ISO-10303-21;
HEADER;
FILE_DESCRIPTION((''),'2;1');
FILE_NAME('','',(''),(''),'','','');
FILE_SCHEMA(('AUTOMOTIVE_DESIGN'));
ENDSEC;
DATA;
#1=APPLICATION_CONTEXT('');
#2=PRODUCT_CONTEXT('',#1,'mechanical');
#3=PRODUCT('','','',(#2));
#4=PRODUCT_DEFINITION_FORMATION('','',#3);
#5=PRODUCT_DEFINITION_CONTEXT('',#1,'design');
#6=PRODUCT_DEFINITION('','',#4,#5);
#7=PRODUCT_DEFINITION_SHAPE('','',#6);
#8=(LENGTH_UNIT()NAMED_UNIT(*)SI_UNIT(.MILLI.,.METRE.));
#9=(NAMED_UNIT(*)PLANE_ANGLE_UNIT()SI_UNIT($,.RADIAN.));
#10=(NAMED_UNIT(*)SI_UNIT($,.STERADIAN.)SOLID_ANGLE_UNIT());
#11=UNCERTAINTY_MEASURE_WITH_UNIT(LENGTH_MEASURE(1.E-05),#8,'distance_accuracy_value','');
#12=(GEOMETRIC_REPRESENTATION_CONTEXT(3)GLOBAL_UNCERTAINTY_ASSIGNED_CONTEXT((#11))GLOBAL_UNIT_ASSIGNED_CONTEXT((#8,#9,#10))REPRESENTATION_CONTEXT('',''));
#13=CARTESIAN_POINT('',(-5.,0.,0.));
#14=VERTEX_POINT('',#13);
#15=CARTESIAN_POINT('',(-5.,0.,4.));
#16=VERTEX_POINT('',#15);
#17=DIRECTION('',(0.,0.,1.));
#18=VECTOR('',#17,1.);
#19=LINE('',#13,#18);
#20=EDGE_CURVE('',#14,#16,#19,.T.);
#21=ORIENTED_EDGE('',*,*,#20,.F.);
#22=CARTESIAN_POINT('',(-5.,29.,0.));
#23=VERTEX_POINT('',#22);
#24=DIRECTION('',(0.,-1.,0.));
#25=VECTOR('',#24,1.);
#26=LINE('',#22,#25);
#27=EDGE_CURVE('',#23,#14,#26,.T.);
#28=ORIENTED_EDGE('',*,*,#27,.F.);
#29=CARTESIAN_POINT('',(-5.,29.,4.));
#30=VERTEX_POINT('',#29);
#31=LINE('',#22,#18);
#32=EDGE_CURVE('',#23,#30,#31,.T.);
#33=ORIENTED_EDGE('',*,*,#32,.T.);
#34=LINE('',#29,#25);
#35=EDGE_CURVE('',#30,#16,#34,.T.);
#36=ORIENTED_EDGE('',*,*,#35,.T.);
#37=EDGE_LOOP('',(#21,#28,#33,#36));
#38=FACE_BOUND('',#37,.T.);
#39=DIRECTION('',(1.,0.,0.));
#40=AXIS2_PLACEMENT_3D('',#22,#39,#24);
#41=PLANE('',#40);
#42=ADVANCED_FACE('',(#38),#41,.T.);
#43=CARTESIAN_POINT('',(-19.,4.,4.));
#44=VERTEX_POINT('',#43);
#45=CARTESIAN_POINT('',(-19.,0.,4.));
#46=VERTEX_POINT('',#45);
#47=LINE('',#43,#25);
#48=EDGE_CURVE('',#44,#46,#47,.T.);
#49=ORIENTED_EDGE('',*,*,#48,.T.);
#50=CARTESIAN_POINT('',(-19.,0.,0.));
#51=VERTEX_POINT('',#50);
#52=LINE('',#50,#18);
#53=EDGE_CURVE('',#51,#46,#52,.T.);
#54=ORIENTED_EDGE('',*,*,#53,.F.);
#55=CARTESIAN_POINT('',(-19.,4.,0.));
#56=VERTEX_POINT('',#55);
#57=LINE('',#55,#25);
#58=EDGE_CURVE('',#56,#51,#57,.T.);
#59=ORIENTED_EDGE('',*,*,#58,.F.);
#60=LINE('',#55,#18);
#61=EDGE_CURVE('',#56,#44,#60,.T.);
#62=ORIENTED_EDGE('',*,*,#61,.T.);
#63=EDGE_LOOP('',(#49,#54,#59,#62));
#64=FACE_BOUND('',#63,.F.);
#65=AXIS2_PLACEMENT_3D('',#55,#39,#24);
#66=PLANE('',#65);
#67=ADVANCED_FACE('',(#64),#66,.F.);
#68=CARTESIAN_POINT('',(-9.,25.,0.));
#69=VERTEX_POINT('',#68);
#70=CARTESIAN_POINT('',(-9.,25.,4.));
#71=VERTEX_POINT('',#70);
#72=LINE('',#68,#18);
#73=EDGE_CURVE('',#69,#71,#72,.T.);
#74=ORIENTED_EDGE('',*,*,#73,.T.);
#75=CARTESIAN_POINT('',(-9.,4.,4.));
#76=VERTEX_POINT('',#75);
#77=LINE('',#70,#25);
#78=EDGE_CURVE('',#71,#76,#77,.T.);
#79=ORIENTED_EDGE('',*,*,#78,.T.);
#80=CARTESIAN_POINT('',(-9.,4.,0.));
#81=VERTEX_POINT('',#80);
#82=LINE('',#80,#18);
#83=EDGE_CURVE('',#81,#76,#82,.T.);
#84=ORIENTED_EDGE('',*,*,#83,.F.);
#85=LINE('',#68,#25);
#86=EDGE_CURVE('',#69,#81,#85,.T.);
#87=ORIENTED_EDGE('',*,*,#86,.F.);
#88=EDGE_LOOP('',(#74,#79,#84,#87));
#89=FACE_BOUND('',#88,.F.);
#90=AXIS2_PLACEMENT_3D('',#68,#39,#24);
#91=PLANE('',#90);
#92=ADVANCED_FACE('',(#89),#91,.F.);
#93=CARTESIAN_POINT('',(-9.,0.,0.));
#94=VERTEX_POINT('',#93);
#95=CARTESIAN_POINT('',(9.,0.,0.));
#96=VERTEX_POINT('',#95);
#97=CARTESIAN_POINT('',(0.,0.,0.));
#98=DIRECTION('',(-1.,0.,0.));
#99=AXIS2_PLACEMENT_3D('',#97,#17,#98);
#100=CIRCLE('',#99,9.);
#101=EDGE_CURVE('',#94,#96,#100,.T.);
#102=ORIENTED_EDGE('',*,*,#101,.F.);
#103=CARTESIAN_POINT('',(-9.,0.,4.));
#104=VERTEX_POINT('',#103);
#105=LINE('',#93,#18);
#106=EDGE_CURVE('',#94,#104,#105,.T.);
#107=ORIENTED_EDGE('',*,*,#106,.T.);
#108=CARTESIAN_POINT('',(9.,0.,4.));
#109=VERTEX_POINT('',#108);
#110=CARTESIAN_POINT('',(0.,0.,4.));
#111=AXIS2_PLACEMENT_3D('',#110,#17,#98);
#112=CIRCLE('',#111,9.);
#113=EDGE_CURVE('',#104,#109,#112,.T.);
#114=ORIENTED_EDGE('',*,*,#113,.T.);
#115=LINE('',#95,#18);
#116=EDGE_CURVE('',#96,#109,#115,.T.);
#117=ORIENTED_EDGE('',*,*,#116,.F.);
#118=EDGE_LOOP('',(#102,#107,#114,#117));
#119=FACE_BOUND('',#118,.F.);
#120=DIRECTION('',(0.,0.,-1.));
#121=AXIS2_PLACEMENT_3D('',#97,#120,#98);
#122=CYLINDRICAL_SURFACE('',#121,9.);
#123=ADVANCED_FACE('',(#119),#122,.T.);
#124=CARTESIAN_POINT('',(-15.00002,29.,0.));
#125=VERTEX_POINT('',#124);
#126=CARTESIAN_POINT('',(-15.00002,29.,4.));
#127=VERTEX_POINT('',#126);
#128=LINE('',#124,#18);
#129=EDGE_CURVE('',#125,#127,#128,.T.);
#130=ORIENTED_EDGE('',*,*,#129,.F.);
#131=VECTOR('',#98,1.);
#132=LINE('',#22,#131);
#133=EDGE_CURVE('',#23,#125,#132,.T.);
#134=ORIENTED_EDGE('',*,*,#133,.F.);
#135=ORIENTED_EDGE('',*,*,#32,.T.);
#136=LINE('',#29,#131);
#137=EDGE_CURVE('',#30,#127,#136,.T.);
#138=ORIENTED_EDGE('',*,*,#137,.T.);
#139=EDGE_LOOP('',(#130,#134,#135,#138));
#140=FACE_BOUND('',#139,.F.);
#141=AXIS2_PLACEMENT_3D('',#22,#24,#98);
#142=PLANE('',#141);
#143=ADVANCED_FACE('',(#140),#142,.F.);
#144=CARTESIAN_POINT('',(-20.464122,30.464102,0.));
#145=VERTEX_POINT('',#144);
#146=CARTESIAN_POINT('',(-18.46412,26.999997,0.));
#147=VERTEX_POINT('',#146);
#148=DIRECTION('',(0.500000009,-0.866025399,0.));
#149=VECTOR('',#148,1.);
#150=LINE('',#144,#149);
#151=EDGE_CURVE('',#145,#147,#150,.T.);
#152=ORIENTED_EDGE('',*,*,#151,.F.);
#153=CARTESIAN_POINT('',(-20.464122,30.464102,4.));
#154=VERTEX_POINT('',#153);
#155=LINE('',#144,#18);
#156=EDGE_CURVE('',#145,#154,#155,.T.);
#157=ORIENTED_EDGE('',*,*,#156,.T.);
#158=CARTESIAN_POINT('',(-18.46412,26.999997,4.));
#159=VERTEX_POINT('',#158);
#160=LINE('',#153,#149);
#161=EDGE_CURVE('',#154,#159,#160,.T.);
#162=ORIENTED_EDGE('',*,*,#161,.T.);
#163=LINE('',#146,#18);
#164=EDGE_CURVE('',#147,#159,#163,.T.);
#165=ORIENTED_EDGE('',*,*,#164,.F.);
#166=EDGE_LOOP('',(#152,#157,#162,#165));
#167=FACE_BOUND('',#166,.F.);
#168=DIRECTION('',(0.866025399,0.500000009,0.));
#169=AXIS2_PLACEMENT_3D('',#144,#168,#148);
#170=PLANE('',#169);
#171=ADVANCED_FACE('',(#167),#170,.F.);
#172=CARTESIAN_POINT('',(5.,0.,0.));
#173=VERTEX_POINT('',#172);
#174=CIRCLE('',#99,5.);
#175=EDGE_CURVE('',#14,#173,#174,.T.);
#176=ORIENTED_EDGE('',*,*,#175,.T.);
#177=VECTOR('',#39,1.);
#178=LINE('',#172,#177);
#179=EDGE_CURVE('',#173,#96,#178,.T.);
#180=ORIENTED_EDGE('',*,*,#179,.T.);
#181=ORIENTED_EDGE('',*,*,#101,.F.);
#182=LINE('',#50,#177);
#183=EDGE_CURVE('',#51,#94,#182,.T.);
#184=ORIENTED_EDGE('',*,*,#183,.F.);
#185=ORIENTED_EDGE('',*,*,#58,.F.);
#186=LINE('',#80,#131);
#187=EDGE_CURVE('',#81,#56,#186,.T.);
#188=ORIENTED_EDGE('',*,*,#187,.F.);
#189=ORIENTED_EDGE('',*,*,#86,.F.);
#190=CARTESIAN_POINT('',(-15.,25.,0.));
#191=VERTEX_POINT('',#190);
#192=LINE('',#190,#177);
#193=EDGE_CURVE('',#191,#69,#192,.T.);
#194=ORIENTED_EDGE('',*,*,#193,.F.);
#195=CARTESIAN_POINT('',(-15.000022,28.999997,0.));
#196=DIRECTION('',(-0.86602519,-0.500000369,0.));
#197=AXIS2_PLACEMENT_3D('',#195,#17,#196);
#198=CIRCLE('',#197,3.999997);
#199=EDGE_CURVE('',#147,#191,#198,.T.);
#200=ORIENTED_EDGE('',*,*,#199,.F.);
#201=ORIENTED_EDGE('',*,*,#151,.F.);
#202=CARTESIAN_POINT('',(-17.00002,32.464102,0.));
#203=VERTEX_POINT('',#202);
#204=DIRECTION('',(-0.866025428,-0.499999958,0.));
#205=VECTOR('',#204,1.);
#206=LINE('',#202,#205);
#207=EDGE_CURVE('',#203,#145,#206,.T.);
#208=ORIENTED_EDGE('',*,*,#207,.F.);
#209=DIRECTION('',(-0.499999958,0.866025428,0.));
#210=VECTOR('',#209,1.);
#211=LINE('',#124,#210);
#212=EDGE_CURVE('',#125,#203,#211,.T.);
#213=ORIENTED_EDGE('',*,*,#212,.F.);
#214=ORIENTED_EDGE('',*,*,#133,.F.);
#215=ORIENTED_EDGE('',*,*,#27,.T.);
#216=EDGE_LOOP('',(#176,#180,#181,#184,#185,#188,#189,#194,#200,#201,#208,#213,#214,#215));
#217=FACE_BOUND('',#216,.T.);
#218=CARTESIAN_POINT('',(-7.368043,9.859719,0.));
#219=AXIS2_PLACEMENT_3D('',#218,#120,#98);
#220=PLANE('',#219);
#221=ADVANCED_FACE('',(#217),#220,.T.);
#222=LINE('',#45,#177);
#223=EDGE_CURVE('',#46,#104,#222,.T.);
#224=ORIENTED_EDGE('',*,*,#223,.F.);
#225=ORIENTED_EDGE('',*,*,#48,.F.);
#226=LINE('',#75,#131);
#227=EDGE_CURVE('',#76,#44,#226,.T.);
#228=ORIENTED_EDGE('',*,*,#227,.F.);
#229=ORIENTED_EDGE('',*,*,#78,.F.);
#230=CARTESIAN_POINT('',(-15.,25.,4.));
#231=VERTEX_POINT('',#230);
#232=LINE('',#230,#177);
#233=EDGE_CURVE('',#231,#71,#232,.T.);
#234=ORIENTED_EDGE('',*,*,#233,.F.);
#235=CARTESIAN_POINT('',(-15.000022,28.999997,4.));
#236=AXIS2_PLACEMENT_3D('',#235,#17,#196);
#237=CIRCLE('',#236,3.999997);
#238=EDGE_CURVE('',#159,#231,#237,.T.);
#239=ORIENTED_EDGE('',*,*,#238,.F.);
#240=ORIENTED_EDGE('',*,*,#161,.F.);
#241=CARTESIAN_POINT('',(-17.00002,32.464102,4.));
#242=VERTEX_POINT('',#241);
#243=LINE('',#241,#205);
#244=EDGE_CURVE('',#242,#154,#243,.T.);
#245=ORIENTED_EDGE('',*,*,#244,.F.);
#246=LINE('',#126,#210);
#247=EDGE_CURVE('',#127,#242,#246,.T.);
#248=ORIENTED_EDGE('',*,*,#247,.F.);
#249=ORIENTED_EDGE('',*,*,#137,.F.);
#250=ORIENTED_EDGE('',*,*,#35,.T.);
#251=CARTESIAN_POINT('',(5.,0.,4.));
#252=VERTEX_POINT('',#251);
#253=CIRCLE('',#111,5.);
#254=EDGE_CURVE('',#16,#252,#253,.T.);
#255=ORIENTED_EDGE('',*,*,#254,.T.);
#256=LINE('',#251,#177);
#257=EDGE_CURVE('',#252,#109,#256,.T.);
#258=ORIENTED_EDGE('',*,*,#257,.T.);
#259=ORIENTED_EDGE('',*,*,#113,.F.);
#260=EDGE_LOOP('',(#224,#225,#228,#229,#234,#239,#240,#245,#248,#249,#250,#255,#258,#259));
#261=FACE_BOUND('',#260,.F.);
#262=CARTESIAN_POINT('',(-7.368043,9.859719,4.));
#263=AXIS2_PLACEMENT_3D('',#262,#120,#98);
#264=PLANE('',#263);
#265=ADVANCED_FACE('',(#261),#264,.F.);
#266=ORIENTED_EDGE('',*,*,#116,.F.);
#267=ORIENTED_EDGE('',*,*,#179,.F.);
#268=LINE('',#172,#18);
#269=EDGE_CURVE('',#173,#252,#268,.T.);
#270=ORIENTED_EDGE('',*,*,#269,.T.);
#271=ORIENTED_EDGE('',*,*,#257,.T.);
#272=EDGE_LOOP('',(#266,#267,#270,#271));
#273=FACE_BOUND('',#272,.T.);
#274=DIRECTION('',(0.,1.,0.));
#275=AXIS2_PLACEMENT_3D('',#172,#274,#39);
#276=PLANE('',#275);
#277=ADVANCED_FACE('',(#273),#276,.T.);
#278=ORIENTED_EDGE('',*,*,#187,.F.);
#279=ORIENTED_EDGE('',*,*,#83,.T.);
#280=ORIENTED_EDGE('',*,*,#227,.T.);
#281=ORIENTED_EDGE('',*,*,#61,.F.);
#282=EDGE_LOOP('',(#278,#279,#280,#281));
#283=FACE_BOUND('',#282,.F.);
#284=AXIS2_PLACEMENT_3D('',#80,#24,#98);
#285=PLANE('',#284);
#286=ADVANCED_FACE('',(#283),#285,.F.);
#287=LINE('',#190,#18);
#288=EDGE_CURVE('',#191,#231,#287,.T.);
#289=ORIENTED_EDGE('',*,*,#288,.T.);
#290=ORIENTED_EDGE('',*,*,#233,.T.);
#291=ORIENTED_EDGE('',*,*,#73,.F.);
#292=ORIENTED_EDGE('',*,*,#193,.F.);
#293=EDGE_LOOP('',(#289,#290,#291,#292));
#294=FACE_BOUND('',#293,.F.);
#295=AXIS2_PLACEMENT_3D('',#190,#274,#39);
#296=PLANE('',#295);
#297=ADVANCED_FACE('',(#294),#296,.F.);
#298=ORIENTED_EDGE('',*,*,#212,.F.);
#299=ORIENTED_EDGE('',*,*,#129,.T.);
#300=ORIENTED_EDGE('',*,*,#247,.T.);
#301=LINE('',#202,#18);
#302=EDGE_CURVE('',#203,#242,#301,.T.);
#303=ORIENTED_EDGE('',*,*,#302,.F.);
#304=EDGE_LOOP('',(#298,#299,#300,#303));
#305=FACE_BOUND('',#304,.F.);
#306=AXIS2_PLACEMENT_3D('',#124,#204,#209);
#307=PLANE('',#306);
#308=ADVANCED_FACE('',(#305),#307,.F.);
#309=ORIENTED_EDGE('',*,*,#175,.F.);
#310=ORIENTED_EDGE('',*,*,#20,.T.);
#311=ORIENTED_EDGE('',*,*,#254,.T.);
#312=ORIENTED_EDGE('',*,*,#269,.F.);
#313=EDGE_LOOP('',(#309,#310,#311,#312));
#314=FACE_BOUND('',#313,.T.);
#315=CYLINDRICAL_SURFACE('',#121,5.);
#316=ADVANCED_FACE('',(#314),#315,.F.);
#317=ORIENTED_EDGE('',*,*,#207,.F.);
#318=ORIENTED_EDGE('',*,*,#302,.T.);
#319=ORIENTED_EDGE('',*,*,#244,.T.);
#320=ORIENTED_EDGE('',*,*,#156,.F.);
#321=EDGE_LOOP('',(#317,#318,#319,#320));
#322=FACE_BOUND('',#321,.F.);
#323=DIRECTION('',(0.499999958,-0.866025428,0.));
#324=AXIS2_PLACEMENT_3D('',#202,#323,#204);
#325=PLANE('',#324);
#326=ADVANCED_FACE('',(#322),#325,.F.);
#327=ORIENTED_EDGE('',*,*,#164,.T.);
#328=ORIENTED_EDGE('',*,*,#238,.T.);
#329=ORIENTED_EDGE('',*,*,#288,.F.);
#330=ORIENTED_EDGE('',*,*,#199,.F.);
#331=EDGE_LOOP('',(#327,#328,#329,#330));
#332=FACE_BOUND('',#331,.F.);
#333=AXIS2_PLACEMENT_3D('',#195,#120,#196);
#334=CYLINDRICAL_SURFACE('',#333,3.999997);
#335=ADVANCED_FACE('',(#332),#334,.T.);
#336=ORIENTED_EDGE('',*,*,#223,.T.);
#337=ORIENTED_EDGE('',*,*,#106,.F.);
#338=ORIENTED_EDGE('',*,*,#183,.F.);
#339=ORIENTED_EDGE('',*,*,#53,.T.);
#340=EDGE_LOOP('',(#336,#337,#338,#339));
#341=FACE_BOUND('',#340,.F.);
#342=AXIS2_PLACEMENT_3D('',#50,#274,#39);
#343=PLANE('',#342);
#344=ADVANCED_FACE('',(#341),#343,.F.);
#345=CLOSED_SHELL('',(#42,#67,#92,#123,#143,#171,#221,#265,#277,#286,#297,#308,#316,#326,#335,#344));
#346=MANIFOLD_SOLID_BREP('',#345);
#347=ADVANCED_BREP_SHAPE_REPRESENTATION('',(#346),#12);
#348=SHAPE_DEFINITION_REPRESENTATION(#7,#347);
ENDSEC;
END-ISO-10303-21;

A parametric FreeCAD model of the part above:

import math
import FreeCAD as App
import Part
import Sketcher

V = App.Vector
Q = App.Units.Quantity

doc = App.newDocument("Part")
body = doc.addObject("PartDesign::Body", "Body")

# Sketch on XY plane
sketch1 = body.newObject("Sketcher::SketchObject", "Sketch")
sketch1.AttachmentSupport = (doc.getObject("XY_Plane"), [""])
sketch1.MapMode = "FlatFace"
sketch1.addGeometry(Part.LineSegment(V(-5, 0, 0), V(-5, 29, 0)), False)
sketch1.addGeometry(Part.LineSegment(V(-5, 29, 0), V(-15, 29, 0)), False)
sketch1.addGeometry(Part.LineSegment(V(-15, 29, 0), V(-17, 32.5, 0)), False)
sketch1.addGeometry(Part.LineSegment(V(-17, 32.5, 0), V(-20.5, 30.5, 0)), False)
sketch1.addGeometry(Part.LineSegment(V(-20.5, 30.5, 0), V(-18.5, 27, 0)), False)
sketch1.addGeometry(Part.ArcOfCircle(Part.Circle(V(-15, 29, 0), V(0, 0, 1), 4), math.radians(-150), math.radians(-90)), False)
sketch1.addGeometry(Part.LineSegment(V(-15, 25, 0), V(-9, 25, 0)), False)
sketch1.addGeometry(Part.LineSegment(V(-9, 25, 0), V(-9, 4, 0)), False)
sketch1.addGeometry(Part.LineSegment(V(-9, 4, 0), V(-19, 4, 0)), False)
sketch1.addGeometry(Part.LineSegment(V(-19, 4, 0), V(-19, 0, 0)), False)
sketch1.addGeometry(Part.LineSegment(V(-19, 0, 0), V(-9, 0, 0)), False)
sketch1.addGeometry(Part.ArcOfCircle(Part.Circle(V(0, 0, 0), V(0, 0, 1), 9), math.radians(180), math.radians(360)), False)
sketch1.addGeometry(Part.LineSegment(V(9, 0, 0), V(5, 0, 0)), False)
sketch1.addGeometry(Part.ArcOfCircle(Part.Circle(V(0, 0, 0), V(0, 0, 1), 5), math.radians(180), math.radians(360)), False)
sketch1.addConstraint(Sketcher.Constraint("Coincident", 0, 2, 1, 1))
sketch1.addConstraint(Sketcher.Constraint("Coincident", 1, 2, 2, 1))
sketch1.addConstraint(Sketcher.Constraint("Coincident", 2, 2, 3, 1))
sketch1.addConstraint(Sketcher.Constraint("Coincident", 3, 2, 4, 1))
sketch1.addConstraint(Sketcher.Constraint("Tangent", 4, 2, 5, 1))
sketch1.addConstraint(Sketcher.Constraint("Coincident", 5, 2, 6, 1))
sketch1.addConstraint(Sketcher.Constraint("Coincident", 6, 2, 7, 1))
sketch1.addConstraint(Sketcher.Constraint("Coincident", 7, 2, 8, 1))
sketch1.addConstraint(Sketcher.Constraint("Coincident", 8, 2, 9, 1))
sketch1.addConstraint(Sketcher.Constraint("Coincident", 9, 2, 10, 1))
sketch1.addConstraint(Sketcher.Constraint("Coincident", 10, 2, 11, 1))
sketch1.addConstraint(Sketcher.Constraint("Coincident", 11, 2, 12, 1))
sketch1.addConstraint(Sketcher.Constraint("Coincident", 12, 2, 13, 2))
sketch1.addConstraint(Sketcher.Constraint("Tangent", 13, 1, 0, 1))
sketch1.addConstraint(Sketcher.Constraint("Vertical", 0))
sketch1.addConstraint(Sketcher.Constraint("Horizontal", 1))
sketch1.addConstraint(Sketcher.Constraint("Horizontal", 6))
sketch1.addConstraint(Sketcher.Constraint("Vertical", 7))
sketch1.addConstraint(Sketcher.Constraint("Horizontal", 8))
sketch1.addConstraint(Sketcher.Constraint("Vertical", 9))
sketch1.addConstraint(Sketcher.Constraint("Horizontal", 10))
sketch1.addConstraint(Sketcher.Constraint("Horizontal", 12))
sketch1.addConstraint(Sketcher.Constraint("Coincident", 11, 3, -1, 1))
sketch1.addConstraint(Sketcher.Constraint("Coincident", 13, 3, -1, 1))
sketch1.addConstraint(Sketcher.Constraint("Coincident", 1, 2, 5, 3))
sketch1.addConstraint(Sketcher.Constraint("PointOnObject", 9, 2, -1))
sketch1.addConstraint(Sketcher.Constraint("PointOnObject", 11, 2, -1))
sketch1.addConstraint(Sketcher.Constraint("Perpendicular", 2, 3))
sketch1.addConstraint(Sketcher.Constraint("Perpendicular", 3, 4))
sketch1.addConstraint(Sketcher.Constraint("Vertical", 7, 2, 10, 2))
sketch1.addConstraint(Sketcher.Constraint("Equal", 12, 9))
sketch1.addConstraint(Sketcher.Constraint("Equal", 2, 3))
sketch1.addConstraint(Sketcher.Constraint("Radius", 11, Q("9 mm")))
sketch1.addConstraint(Sketcher.Constraint("Radius", 13, Q("5 mm")))
sketch1.addConstraint(Sketcher.Constraint("DistanceX", 6, 1, 6, 2, Q("6 mm")))
sketch1.addConstraint(Sketcher.Constraint("DistanceX", 8, 2, 8, 1, Q("10 mm")))
sketch1.addConstraint(Sketcher.Constraint("DistanceY", 0, 1, 0, 2, Q("29 mm")))
sketch1.addConstraint(Sketcher.Constraint("DistanceY", 7, 2, 7, 1, Q("21 mm")))
sketch1.addConstraint(Sketcher.Constraint("Angle", 2, Q("119.999997 deg")))
sketch1.addConstraint(Sketcher.Constraint("DistanceX", 1, 2, 1, 1, Q("10.00002 mm")))
pad1 = body.newObject("PartDesign::Pad", "Pad")
pad1.Profile = sketch1
pad1.Length = 4

doc.recompute()
